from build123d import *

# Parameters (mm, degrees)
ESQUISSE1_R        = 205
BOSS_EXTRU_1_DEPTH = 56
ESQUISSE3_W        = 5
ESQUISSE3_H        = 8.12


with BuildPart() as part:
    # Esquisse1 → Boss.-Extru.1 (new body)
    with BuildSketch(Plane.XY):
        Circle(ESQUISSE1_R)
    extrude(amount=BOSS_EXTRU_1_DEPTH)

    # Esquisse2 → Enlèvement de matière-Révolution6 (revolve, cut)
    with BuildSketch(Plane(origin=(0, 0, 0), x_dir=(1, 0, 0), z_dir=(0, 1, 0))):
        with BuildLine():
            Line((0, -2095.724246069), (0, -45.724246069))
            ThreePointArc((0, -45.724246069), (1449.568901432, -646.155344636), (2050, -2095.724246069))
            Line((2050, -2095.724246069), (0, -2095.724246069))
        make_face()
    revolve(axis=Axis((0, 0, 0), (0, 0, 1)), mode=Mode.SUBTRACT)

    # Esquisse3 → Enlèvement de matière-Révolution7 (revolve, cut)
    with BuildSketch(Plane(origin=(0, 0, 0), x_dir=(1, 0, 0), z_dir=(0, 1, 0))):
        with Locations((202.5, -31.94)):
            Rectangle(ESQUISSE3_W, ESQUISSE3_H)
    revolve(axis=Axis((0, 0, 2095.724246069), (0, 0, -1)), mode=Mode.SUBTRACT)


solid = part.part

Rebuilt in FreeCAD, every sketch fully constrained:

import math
import FreeCAD as App
import Part
import Sketcher
from FreeCAD import Vector

doc = App.newDocument("Part")
body = doc.addObject("PartDesign::Body", "Body")

sketch1 = body.newObject("Sketcher::SketchObject", "Sketch")
sketch1.AttachmentSupport = (doc.getObject("XY_Plane"), [""])
sketch1.MapMode = "FlatFace"
sketch1.addGeometry(Part.Circle(Vector(0, 0, 0), Vector(0, 0, 1), 205), False)
sketch1.addConstraint(Sketcher.Constraint("Coincident", 0, 3, -1, 1))
sketch1.addConstraint(Sketcher.Constraint("Diameter", 0, 410.0))
pad1 = body.newObject("PartDesign::Pad", "Pad")
pad1.Profile = sketch1
pad1.Length = 56

sketch2 = body.newObject("Sketcher::SketchObject", "Sketch001")
sketch2.AttachmentSupport = (doc.getObject("XZ_Plane"), [""])
sketch2.MapMode = "FlatFace"
sketch2.addGeometry(Part.LineSegment(Vector(0, 46, 0), Vector(0, 2096, 0)), False)
sketch2.addGeometry(Part.LineSegment(Vector(0, 2096, 0), Vector(2050, 2096, 0)), False)
sketch2.addGeometry(Part.ArcOfCircle(Part.Circle(Vector(0, 2096, 0), Vector(0, 0, 1), 2050), math.radians(-90), math.radians(0)), False)
sketch2.addConstraint(Sketcher.Constraint("Coincident", 0, 2, 1, 1))
sketch2.addConstraint(Sketcher.Constraint("Coincident", 1, 2, 2, 2))
sketch2.addConstraint(Sketcher.Constraint("Coincident", 2, 1, 0, 1))
sketch2.addConstraint(Sketcher.Constraint("Vertical", 0))
sketch2.addConstraint(Sketcher.Constraint("Horizontal", 1))
sketch2.addConstraint(Sketcher.Constraint("Coincident", 0, 2, 2, 3))
sketch2.addConstraint(Sketcher.Constraint("PointOnObject", 2, 3, -2))
sketch2.addConstraint(Sketcher.Constraint("Radius", 2, 2050.0))
sketch2.addConstraint(Sketcher.Constraint("DistanceY", -1, 1, 2, 3, 2095.724246))
groove = body.newObject("PartDesign::Groove", "Groove")
groove.Profile = sketch2
groove.ReferenceAxis = (sketch2, ["V_Axis"])
groove.Angle = 360

sketch3 = body.newObject("Sketcher::SketchObject", "Sketch002")
sketch3.AttachmentSupport = (doc.getObject("XZ_Plane"), [""])
sketch3.MapMode = "FlatFace"
sketch3.addGeometry(Part.LineSegment(Vector(200, 28, 0), Vector(200, 36, 0)), False)
sketch3.addGeometry(Part.LineSegment(Vector(200, 36, 0), Vector(205, 36, 0)), False)
sketch3.addGeometry(Part.LineSegment(Vector(205, 36, 0), Vector(205, 28, 0)), False)
sketch3.addGeometry(Part.LineSegment(Vector(205, 28, 0), Vector(200, 28, 0)), False)
sketch3.addConstraint(Sketcher.Constraint("Coincident", 0, 2, 1, 1))
sketch3.addConstraint(Sketcher.Constraint("Coincident", 1, 2, 2, 1))
sketch3.addConstraint(Sketcher.Constraint("Coincident", 2, 2, 3, 1))
sketch3.addConstraint(Sketcher.Constraint("Coincident", 3, 2, 0, 1))
sketch3.addConstraint(Sketcher.Constraint("Vertical", 0))
sketch3.addConstraint(Sketcher.Constraint("Horizontal", 1))
sketch3.addConstraint(Sketcher.Constraint("Vertical", 2))
sketch3.addConstraint(Sketcher.Constraint("Horizontal", 3))
sketch3.addConstraint(Sketcher.Constraint("DistanceX", 1, 1, 1, 2, 5.0))
sketch3.addConstraint(Sketcher.Constraint("DistanceX", -1, 1, 0, 2, 200.0))
sketch3.addConstraint(Sketcher.Constraint("DistanceY", -1, 1, 0, 2, 36.0))
sketch3.addConstraint(Sketcher.Constraint("DistanceY", 0, 1, 0, 2, 8.12))
groove2 = body.newObject("PartDesign::Groove", "Groove001")
groove2.Profile = sketch3
groove2.ReferenceAxis = (sketch3, ["V_Axis"])
groove2.Angle = 360

doc.recompute()
